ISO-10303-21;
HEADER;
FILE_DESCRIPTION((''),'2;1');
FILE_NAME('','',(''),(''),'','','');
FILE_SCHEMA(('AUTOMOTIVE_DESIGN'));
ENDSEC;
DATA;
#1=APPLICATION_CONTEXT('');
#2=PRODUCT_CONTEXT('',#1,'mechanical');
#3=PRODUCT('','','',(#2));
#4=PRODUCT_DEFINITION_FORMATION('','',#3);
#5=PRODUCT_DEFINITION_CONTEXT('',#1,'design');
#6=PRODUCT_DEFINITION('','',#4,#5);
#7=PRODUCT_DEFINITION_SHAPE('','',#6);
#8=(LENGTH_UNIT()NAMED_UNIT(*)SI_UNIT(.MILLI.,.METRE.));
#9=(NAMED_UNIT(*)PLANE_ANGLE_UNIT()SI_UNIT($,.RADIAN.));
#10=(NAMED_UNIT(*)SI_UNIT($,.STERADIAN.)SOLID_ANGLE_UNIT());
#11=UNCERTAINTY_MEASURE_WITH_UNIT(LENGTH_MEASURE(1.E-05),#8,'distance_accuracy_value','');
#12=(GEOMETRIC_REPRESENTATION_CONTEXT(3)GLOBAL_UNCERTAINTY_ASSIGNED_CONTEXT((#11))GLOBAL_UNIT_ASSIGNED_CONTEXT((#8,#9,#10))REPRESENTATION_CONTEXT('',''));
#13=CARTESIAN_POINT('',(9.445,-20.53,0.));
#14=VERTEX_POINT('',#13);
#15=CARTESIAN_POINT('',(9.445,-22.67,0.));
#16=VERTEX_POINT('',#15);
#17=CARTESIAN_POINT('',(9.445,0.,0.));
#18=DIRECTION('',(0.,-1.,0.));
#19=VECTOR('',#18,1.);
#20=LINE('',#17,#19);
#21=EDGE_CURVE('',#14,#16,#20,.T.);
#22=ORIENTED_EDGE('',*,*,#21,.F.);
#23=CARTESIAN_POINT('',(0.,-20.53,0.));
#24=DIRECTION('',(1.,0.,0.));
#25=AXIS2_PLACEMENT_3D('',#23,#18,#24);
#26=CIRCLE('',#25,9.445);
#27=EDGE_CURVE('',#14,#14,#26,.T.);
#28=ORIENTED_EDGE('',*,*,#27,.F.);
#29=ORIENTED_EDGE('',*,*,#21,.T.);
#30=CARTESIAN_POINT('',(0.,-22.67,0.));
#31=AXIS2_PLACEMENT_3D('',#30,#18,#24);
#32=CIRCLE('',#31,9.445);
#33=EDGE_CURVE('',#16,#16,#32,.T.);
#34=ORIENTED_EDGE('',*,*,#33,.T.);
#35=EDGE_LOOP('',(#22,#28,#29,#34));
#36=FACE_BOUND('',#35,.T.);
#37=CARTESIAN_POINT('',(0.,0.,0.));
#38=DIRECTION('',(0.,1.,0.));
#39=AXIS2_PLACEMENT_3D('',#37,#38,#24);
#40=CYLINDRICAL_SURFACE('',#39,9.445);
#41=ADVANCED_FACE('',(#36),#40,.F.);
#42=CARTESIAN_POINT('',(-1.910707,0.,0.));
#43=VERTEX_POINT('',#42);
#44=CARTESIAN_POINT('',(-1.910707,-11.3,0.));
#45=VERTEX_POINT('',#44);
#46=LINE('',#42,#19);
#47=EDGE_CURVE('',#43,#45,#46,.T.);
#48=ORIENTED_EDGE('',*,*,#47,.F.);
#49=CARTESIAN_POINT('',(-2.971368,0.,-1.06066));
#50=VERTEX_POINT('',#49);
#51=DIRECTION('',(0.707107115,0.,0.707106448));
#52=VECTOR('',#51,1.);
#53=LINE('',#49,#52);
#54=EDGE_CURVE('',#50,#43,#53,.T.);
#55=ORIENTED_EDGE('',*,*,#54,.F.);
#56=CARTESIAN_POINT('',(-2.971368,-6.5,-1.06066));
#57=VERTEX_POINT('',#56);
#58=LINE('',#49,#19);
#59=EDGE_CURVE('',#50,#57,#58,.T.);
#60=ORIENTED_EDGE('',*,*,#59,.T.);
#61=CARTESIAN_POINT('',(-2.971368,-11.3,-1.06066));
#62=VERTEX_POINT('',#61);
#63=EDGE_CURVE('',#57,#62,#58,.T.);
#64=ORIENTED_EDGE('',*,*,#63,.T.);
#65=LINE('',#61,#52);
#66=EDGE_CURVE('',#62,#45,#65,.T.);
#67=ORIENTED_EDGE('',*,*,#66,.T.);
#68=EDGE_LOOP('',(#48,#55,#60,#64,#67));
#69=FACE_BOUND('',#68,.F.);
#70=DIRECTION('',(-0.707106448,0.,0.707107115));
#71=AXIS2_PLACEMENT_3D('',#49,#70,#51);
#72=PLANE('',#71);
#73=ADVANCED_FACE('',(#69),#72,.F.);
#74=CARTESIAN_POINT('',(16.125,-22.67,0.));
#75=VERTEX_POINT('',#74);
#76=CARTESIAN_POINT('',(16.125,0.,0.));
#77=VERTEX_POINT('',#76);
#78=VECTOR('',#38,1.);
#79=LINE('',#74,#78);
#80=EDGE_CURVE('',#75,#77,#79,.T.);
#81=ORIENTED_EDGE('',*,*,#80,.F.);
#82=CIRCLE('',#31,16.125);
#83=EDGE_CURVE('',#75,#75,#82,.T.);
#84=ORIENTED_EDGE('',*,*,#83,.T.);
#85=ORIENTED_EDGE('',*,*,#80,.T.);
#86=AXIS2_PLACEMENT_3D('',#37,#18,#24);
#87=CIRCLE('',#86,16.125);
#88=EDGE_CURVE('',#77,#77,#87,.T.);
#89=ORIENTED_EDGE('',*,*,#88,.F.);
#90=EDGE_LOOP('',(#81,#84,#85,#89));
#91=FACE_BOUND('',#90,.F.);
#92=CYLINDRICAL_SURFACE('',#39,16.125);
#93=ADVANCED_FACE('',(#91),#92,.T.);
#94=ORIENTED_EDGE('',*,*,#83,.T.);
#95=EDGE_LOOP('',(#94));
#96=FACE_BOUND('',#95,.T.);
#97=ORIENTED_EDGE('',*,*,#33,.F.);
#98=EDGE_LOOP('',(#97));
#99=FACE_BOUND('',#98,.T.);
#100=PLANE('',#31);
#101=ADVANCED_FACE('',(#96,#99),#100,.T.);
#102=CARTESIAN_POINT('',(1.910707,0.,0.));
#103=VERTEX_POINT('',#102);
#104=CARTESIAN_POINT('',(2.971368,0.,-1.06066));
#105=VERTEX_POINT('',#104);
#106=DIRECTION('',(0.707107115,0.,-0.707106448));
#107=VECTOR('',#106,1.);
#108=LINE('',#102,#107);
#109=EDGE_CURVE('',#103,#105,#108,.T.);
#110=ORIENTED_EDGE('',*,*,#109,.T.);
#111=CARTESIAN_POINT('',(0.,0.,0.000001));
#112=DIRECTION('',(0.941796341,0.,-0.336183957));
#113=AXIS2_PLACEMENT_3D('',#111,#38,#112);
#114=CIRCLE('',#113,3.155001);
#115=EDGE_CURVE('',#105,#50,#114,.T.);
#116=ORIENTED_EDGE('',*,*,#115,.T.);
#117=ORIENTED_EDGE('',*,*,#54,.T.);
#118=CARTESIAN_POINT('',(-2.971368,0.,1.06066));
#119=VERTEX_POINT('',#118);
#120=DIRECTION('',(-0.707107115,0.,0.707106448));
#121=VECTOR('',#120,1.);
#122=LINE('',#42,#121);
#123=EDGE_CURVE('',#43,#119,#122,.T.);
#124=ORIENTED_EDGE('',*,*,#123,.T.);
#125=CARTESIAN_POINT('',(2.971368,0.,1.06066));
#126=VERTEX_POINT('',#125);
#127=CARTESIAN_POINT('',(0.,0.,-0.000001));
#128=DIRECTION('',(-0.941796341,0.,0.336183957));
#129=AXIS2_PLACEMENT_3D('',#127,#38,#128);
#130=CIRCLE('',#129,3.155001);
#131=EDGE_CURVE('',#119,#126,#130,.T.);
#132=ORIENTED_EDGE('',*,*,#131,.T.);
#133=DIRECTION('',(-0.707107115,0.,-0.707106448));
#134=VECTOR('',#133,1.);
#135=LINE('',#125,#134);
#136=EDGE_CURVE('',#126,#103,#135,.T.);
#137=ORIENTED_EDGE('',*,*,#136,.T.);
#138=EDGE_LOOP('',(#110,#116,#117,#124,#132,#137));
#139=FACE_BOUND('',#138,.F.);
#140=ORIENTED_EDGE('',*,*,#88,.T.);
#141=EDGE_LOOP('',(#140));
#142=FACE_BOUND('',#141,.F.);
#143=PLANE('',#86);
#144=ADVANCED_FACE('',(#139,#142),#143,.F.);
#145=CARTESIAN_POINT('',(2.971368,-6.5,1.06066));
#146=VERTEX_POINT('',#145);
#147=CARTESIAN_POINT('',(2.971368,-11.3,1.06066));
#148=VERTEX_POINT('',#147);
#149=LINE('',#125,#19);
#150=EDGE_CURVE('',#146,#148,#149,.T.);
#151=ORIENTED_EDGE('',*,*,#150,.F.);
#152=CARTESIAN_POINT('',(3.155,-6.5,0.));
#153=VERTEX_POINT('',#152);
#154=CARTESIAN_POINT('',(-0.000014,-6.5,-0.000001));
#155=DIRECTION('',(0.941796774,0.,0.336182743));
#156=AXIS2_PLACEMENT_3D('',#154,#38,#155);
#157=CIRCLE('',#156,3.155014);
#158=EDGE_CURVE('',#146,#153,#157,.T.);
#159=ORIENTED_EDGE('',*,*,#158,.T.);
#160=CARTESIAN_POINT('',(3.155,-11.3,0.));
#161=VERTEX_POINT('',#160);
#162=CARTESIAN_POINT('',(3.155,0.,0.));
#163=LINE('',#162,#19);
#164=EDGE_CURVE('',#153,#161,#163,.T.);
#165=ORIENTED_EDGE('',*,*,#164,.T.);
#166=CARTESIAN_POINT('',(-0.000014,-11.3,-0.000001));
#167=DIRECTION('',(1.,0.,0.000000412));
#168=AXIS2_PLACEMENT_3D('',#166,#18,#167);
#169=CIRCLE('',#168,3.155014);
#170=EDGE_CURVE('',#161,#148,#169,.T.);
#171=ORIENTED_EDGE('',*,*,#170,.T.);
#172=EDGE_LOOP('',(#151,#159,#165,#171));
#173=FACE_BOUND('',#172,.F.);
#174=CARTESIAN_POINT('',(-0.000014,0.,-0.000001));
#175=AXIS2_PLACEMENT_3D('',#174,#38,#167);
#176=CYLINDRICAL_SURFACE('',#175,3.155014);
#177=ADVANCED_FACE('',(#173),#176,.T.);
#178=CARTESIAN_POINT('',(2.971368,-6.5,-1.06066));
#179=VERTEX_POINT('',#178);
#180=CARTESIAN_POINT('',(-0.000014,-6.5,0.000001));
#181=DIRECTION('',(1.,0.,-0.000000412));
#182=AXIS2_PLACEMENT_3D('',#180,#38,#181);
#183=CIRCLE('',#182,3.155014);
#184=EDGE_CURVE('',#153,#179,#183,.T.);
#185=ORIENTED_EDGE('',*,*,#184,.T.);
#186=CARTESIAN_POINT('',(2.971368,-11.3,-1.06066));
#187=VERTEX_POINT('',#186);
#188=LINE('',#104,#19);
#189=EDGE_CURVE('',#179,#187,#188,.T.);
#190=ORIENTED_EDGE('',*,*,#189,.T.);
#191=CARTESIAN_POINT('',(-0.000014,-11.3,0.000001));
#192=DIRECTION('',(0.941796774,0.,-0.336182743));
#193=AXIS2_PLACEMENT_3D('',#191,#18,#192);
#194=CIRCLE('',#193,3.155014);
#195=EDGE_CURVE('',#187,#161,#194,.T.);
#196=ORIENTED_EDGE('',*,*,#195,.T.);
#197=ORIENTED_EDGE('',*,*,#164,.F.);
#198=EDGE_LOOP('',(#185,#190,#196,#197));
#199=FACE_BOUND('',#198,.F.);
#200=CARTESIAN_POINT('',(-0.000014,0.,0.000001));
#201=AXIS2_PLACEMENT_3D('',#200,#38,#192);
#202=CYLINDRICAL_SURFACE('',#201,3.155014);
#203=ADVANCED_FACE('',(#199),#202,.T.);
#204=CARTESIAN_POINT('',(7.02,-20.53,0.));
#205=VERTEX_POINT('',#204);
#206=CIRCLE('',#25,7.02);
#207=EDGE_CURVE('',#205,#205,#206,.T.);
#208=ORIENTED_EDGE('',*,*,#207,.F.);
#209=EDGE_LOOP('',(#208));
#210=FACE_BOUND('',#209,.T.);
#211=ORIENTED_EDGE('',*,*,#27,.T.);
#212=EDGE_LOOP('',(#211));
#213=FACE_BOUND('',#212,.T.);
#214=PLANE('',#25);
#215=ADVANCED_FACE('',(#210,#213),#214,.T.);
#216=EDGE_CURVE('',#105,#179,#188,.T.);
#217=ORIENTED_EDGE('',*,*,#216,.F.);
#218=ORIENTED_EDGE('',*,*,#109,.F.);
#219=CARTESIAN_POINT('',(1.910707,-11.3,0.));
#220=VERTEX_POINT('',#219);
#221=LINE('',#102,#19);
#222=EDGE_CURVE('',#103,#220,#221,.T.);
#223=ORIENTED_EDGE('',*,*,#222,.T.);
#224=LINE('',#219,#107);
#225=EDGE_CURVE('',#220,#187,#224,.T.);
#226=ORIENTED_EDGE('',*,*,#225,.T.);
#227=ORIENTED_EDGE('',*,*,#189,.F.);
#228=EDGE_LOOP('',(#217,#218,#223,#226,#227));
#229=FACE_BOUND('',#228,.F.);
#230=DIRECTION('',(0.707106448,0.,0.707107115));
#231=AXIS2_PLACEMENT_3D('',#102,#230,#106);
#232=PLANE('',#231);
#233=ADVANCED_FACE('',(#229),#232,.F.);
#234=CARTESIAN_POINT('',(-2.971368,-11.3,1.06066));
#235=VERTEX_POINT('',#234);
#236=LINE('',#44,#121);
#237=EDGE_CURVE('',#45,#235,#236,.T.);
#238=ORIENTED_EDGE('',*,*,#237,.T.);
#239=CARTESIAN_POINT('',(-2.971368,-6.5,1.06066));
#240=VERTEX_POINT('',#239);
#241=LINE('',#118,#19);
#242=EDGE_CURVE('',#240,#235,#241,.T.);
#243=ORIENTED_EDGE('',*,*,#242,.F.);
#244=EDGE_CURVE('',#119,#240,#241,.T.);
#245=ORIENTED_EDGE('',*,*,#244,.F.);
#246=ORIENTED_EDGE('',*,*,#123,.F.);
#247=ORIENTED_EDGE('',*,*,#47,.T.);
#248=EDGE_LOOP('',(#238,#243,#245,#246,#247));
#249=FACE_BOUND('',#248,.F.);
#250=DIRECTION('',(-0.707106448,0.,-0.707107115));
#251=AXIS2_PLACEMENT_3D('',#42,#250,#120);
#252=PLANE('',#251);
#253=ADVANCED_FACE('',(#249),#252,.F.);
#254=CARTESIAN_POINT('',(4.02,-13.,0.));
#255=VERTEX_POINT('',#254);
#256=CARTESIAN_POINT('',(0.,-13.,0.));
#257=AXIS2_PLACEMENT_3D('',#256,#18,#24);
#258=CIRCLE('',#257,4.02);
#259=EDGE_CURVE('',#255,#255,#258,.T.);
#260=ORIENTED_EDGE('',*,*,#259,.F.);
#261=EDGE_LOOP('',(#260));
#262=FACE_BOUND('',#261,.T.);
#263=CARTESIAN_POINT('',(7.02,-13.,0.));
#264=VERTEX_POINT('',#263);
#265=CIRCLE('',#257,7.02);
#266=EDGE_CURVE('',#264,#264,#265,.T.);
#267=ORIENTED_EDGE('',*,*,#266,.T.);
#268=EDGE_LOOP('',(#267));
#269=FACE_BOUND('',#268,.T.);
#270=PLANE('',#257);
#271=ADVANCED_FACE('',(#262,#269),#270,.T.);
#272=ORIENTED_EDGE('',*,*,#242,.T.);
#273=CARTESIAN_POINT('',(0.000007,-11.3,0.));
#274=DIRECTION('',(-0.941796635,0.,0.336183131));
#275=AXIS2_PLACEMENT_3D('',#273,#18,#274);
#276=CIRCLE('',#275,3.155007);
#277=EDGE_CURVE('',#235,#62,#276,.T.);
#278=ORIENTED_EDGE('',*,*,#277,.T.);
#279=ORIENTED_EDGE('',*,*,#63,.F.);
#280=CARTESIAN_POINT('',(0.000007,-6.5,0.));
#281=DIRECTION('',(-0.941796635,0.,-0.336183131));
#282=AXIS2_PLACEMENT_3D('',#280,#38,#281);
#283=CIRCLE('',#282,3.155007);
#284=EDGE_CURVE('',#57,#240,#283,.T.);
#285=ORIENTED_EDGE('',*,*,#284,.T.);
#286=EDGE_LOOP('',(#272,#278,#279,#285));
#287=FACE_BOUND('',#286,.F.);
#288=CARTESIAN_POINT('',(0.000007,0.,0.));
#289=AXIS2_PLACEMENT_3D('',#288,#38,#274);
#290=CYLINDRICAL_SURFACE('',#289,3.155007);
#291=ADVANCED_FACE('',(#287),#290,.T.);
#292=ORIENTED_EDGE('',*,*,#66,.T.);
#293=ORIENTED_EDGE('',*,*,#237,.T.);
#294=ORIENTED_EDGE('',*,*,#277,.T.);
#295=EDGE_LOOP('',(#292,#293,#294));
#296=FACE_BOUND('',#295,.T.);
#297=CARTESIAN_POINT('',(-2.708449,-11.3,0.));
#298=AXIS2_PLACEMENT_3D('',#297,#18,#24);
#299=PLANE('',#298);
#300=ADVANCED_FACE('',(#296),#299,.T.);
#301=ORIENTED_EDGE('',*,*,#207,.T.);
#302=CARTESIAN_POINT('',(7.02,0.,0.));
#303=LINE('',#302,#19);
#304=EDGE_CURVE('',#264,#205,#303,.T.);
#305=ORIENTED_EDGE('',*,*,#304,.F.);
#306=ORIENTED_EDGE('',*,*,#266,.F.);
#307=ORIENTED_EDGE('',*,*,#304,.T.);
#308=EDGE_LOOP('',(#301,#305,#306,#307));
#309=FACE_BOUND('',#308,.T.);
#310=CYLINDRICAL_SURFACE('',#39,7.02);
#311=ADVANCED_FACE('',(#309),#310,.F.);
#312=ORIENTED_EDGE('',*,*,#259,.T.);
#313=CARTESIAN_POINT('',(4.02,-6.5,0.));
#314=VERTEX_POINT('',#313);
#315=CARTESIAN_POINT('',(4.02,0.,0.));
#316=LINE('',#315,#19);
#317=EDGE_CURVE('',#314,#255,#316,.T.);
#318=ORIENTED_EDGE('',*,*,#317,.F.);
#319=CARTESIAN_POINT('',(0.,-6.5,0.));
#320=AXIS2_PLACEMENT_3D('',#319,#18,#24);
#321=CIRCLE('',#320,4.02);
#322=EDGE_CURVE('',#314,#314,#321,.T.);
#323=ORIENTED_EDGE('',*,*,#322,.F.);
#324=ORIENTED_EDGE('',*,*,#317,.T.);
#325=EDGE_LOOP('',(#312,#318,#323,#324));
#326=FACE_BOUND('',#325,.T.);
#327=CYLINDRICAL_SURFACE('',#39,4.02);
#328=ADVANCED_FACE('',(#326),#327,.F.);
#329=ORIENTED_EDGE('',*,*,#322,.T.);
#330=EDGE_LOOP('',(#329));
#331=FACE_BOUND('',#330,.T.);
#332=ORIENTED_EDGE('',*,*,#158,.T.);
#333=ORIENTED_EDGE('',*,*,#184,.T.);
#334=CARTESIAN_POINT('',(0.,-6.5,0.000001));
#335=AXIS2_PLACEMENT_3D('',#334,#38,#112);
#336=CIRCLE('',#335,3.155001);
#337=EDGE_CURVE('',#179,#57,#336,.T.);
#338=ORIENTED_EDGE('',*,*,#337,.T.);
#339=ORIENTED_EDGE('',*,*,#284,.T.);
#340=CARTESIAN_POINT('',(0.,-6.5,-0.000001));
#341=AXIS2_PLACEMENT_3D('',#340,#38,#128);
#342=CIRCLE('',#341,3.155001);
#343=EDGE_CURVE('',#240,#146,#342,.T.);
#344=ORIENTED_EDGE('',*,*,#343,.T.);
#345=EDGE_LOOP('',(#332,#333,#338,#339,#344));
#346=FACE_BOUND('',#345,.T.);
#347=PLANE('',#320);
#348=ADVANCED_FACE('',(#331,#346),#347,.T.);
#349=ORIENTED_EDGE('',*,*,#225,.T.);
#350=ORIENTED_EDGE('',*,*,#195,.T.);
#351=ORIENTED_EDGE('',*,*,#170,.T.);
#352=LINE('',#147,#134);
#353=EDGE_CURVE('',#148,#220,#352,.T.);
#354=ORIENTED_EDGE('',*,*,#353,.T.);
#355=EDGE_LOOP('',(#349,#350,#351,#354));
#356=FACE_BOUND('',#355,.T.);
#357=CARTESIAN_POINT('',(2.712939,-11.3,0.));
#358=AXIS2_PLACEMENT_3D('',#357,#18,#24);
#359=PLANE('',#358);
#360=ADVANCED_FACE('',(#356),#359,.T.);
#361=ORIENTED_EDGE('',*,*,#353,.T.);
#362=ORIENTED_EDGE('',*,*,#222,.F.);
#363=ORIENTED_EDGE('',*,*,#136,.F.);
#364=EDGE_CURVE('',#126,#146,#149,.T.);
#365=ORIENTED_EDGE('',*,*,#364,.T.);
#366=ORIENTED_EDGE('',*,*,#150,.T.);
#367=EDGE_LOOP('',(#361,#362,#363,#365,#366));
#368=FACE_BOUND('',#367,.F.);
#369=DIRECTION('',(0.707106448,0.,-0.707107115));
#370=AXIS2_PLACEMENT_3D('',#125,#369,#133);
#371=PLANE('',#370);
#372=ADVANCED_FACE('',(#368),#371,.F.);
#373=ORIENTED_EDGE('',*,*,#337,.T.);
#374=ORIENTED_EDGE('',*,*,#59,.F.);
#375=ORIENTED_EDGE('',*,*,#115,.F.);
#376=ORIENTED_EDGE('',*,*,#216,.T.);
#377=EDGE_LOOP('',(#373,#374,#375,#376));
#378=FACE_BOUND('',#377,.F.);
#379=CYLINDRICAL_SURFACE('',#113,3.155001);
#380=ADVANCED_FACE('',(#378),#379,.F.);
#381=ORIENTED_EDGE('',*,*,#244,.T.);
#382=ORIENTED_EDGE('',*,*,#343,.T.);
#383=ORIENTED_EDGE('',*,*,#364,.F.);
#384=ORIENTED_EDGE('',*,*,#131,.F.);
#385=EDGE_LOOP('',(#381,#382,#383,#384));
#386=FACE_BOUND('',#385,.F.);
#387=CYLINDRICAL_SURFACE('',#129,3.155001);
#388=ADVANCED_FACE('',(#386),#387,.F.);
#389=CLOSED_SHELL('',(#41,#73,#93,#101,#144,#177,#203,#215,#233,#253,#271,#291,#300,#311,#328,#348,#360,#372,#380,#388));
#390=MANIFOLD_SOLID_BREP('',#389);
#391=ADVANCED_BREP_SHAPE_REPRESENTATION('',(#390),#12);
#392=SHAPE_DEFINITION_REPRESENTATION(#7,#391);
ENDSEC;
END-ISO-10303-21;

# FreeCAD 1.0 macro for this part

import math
import FreeCAD as App
import Part
import Sketcher

V = App.Vector
Q = App.Units.Quantity

doc = App.newDocument("Part")
body = doc.addObject("PartDesign::Body", "Body")

# Sketch on XZ plane
sketch1 = body.newObject("Sketcher::SketchObject", "Sketch")
sketch1.AttachmentSupport = (doc.getObject("XZ_Plane"), [""])
sketch1.MapMode = "FlatFace"
sketch1.addGeometry([
    Part.Circle(V(0, 0, 0), V(0, 0, 1), 16),
    Part.Circle(V(0, 0, 0), V(0, 0, 1), 9),
], False)
sketch1.addConstraint([
    Sketcher.Constraint("Coincident", 0, 3, -1, 1),
    Sketcher.Constraint("Coincident", 1, 3, -1, 1),
    Sketcher.Constraint("Diameter", 0, Q("32.25 mm")),
    Sketcher.Constraint("Diameter", 1, Q("18.89 mm")),
])
pad1 = body.newObject("PartDesign::Pad", "Pad")
pad1.Profile = sketch1
pad1.Length = 22.67

# Sketch on XZ plane
sketch2 = body.newObject("Sketcher::SketchObject", "Sketch001")
sketch2.AttachmentSupport = (doc.getObject("XZ_Plane"), [""])
sketch2.MapMode = "FlatFace"
sketch2.addGeometry([
    Part.Circle(V(0, 0, 0), V(0, 0, 1), 9),
    Part.Circle(V(0, 0, 0), V(0, 0, 1), 7),
], False)
sketch2.addConstraint([
    Sketcher.Constraint("Coincident", 0, 3, -1, 1),
    Sketcher.Constraint("Coincident", 1, 3, -1, 1),
    Sketcher.Constraint("Diameter", 0, Q("18.89 mm")),
    Sketcher.Constraint("Diameter", 1, Q("14.04 mm")),
])
pad2 = body.newObject("PartDesign::Pad", "Pad001")
pad2.Profile = sketch2
pad2.Length = 20.53

# Sketch on XZ plane
sketch3 = body.newObject("Sketcher::SketchObject", "Sketch002")
sketch3.AttachmentSupport = (doc.getObject("XZ_Plane"), [""])
sketch3.MapMode = "FlatFace"
sketch3.addGeometry([
    Part.Circle(V(0, 0, 0), V(0, 0, 1), 7),
    Part.Circle(V(0, 0, 0), V(0, 0, 1), 4),
], False)
sketch3.addConstraint([
    Sketcher.Constraint("Coincident", 0, 3, -1, 1),
    Sketcher.Constraint("Coincident", 1, 3, -1, 1),
    Sketcher.Constraint("Diameter", 0, Q("14.04 mm")),
    Sketcher.Constraint("Diameter", 1, Q("8.04 mm")),
])
pad3 = body.newObject("PartDesign::Pad", "Pad002")
pad3.Profile = sketch3
pad3.Length = 13

# Sketch on XZ plane
sketch4 = body.newObject("Sketcher::SketchObject", "Sketch003")
sketch4.AttachmentSupport = (doc.getObject("XZ_Plane"), [""])
sketch4.MapMode = "FlatFace"
sketch4.addGeometry([
    Part.Circle(V(0, 0, 0), V(0, 0, 1), 4),  # 0
    Part.ArcOfCircle(Part.Circle(V(0, 0, 0), V(0, 0, 1), 3.2), math.radians(20), math.radians(160)),  # 1
    Part.ArcOfCircle(Part.Circle(V(0, 0, 0), V(0, 0, 1), 3.2), math.radians(0), math.radians(19.64)),  # 2
    Part.ArcOfCircle(Part.Circle(V(0, 0, 0), V(0, 0, 1), 3.2), math.radians(-19.64), math.radians(0)),  # 3
    Part.ArcOfCircle(Part.Circle(V(0, 0, 0), V(0, 0, 1), 3.2), math.radians(-160), math.radians(-20)),  # 4
    Part.ArcOfCircle(Part.Circle(V(0, 0, 0), V(0, 0, 1), 3.2), math.radians(160), math.radians(200)),  # 5
], False)
sketch4.addConstraint([
    Sketcher.Constraint("Tangent", 1, 1, 2, 2),
    Sketcher.Constraint("Tangent", 2, 1, 3, 2),
    Sketcher.Constraint("Tangent", 3, 1, 4, 2),
    Sketcher.Constraint("Tangent", 4, 1, 5, 2),
    Sketcher.Constraint("Tangent", 5, 1, 1, 2),
    Sketcher.Constraint("Coincident", 0, 3, -1, 1),
    Sketcher.Constraint("Coincident", 1, 3, -1, 1),
    Sketcher.Constraint("Coincident", 4, 3, -1, 1),
    Sketcher.Constraint("PointOnObject", 2, 1, -1),
    Sketcher.Constraint("Horizontal", 3, 1, 4, 1),
    Sketcher.Constraint("Horizontal", 1, 1, 5, 1),
    Sketcher.Constraint("Vertical", 1, 1, 3, 1),
    Sketcher.Constraint("Diameter", 0, Q("8.04 mm")),
    Sketcher.Constraint("Radius", 1, Q("3.155001 mm")),
    Sketcher.Constraint("DistanceY", -1, 1, 1, 1, Q("1.06066 mm")),
])
pad4 = body.newObject("PartDesign::Pad", "Pad003")
pad4.Profile = sketch4
pad4.Length = 6.5

# Sketch on XZ plane
sketch5 = body.newObject("Sketcher::SketchObject", "Sketch004")
sketch5.AttachmentSupport = (doc.getObject("XZ_Plane"), [""])
sketch5.MapMode = "FlatFace"
sketch5.addGeometry([
    Part.Circle(V(0, 0, 0), V(0, 0, 1), 16.125),  # 0
    Part.Circle(V(0, 0, 0), V(0, 0, 1), 9.445),  # 1
    Part.LineSegment(V(-1.910707, 0, 0), V(-2.971368, 1.06066, 0)),  # 2
    Part.ArcOfCircle(Part.Circle(V(0.000007, 0, 0), V(0, 0, 1), 3.155007), math.radians(160.3555), math.radians(199.6445)),  # 3
    Part.LineSegment(V(-2.971368, -1.06066, 0), V(-1.910707, 0, 0)),  # 4
    Part.ArcOfCircle(Part.Circle(V(-0.000014, 0.000001, 0), V(0, 0, 1), 3.155014), math.radians(-19.644476), math.radians(-0.000024)),  # 5
    Part.ArcOfCircle(Part.Circle(V(-0.000014, -0.000001, 0), V(0, 0, 1), 3.155014), math.radians(0.000024), math.radians(19.644476)),  # 6
    Part.LineSegment(V(2.971368, 1.06066, 0), V(1.910707, 0, 0)),  # 7
    Part.LineSegment(V(1.910707, 0, 0), V(2.971368, -1.06066, 0)),  # 8
], False)
sketch5.addConstraint([
    Sketcher.Constraint("Coincident", 2, 2, 3, 1),
    Sketcher.Constraint("Coincident", 3, 2, 4, 1),
    Sketcher.Constraint("Coincident", 4, 2, 2, 1),
    Sketcher.Constraint("Tangent", 5, 2, 6, 1),
    Sketcher.Constraint("Coincident", 6, 2, 7, 1),
    Sketcher.Constraint("Coincident", 7, 2, 8, 1),
    Sketcher.Constraint("Coincident", 8, 2, 5, 1),
    Sketcher.Constraint("Coincident", 0, 3, -1, 1),
    Sketcher.Constraint("Coincident", 1, 3, -1, 1),
    Sketcher.Constraint("Coincident", 3, 3, -1, 1),
    Sketcher.Constraint("Equal", 5, 6),
    Sketcher.Constraint("Symmetric", 3, 3, 5, 3, -1, 1),
    Sketcher.Constraint("Symmetric", 3, 2, 6, 2, -1, 1),
    Sketcher.Constraint("Symmetric", 4, 2, 7, 2, -1, 1),
    Sketcher.Constraint("PointOnObject", 4, 2, -1),
    Sketcher.Constraint("PointOnObject", 5, 2, -1),
    Sketcher.Constraint("Perpendicular", 2, 4),
    Sketcher.Constraint("Perpendicular", 7, 8),
    Sketcher.Constraint("Horizontal", 2, 2, 6, 2),
    Sketcher.Constraint("Diameter", 0, Q("32.25 mm")),
    Sketcher.Constraint("Diameter", 1, Q("18.89 mm")),
    Sketcher.Constraint("Distance", 2, Q("1.5 mm")),
    Sketcher.Constraint("DistanceX", -1, 1, 5, 2, Q("3.155 mm")),
])
pad5 = body.newObject("PartDesign::Pad", "Pad004")
pad5.Profile = sketch5
pad5.Length = 11.3

doc.recompute()
